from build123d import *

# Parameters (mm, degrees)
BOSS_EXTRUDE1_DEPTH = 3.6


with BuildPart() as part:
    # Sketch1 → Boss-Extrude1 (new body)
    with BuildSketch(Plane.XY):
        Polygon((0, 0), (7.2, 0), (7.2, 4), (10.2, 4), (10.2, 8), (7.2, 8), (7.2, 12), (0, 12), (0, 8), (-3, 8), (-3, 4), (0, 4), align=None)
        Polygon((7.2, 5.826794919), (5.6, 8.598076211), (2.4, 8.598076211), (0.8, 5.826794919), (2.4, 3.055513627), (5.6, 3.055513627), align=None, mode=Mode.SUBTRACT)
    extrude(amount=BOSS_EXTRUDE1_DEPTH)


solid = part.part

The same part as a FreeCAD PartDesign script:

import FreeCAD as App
import Part
import Sketcher
from FreeCAD import Vector
Q = App.Units.Quantity


def add_polygon(sketch, points):
    """Adds a closed chain of lines whose ends are joined by coincident constraints."""
    first, n = sketch.GeometryCount, len(points)
    for a, b in zip(points, points[1:] + points[:1]):
        sketch.addGeometry(Part.LineSegment(App.Vector(*a, 0), App.Vector(*b, 0)), False)
    for i in range(n):
        sketch.addConstraint(Sketcher.Constraint("Coincident", first + i, 2, first + (i + 1) % n, 1))

doc = App.newDocument("Part")
params = doc.addObject("Spreadsheet::Sheet", "Params")
for row, (alias, value) in enumerate([
    ("sketch1_width", "3 mm"),
    ("sketch1_height", "4 mm"),
    ("sketch1_width2", "7.2 mm"),
    ("sketch1_width3", "3.2 mm"),
    ("sketch1_length", "3.2 mm"),
    ("pad1_length", "3.6 mm"),
], start=1):
    params.set(f"A{row}", alias)
    params.set(f"B{row}", "=" + value)
    params.setAlias(f"B{row}", alias)

body = doc.addObject("PartDesign::Body", "Body")

# Sketch on XY plane
sketch1 = doc.addObject("Sketcher::SketchObject", "Sketch")
body.addObject(sketch1)
sketch1.AttachmentSupport = (doc.XY_Plane, [""])
sketch1.MapMode = "FlatFace"
add_polygon(sketch1, [(0, 0), (7.2, 0), (7.2, 4), (10.2, 4), (10.2, 8), (7.2, 8), (7.2, 12), (0, 12), (0, 8), (-3, 8), (-3, 4), (0, 4)])  # lines 0-11
add_polygon(sketch1, [(5.6, 8.6), (7.2, 5.8), (5.6, 3.1), (2.4, 3.1), (0.8, 5.8), (2.4, 8.6)])  # lines 12-17
sketch1.addConstraint(Sketcher.Constraint("Horizontal", 0))
sketch1.addConstraint(Sketcher.Constraint("Vertical", 1))
sketch1.addConstraint(Sketcher.Constraint("Horizontal", 2))
sketch1.addConstraint(Sketcher.Constraint("Vertical", 3))
sketch1.addConstraint(Sketcher.Constraint("Horizontal", 4))
sketch1.addConstraint(Sketcher.Constraint("Vertical", 5))
sketch1.addConstraint(Sketcher.Constraint("Horizontal", 6))
sketch1.addConstraint(Sketcher.Constraint("Vertical", 7))
sketch1.addConstraint(Sketcher.Constraint("Horizontal", 8))
sketch1.addConstraint(Sketcher.Constraint("Vertical", 9))
sketch1.addConstraint(Sketcher.Constraint("Horizontal", 10))
sketch1.addConstraint(Sketcher.Constraint("Vertical", 11))
sketch1.addConstraint(Sketcher.Constraint("Horizontal", 14))
sketch1.addConstraint(Sketcher.Constraint("Horizontal", 17))
sketch1.addConstraint(Sketcher.Constraint("Coincident", 11, 2, -1, 1))
sketch1.addConstraint(Sketcher.Constraint("PointOnObject", 6, 2, -2))
sketch1.addConstraint(Sketcher.Constraint("Parallel", 12, 15))
sketch1.addConstraint(Sketcher.Constraint("Parallel", 13, 16))
sketch1.addConstraint(Sketcher.Constraint("Horizontal", 4, 2, 7, 2))
sketch1.addConstraint(Sketcher.Constraint("Horizontal", 2, 2, 9, 2))
sketch1.addConstraint(Sketcher.Constraint("Horizontal", 12, 2, 15, 2))
sketch1.addConstraint(Sketcher.Constraint("Vertical", 1, 2, 4, 2))
sketch1.addConstraint(Sketcher.Constraint("Vertical", 5, 2, 12, 2))
sketch1.addConstraint(Sketcher.Constraint("Vertical", 14, 2, 16, 2))
sketch1.addConstraint(Sketcher.Constraint("Vertical", 13, 2, 17, 2))
sketch1.addConstraint(Sketcher.Constraint("Equal", 4, 8))
sketch1.addConstraint(Sketcher.Constraint("Equal", 1, 3))
sketch1.addConstraint(Sketcher.Constraint("Equal", 3, 5))
sketch1.addConstraint(Sketcher.Constraint("DistanceX", 2, 1, 2, 2, 3.0))
sketch1.addConstraint(Sketcher.Constraint("DistanceY", 1, 1, 1, 2, 4.0))
sketch1.addConstraint(Sketcher.Constraint("Angle", 12, Q("-60 deg")))
sketch1.addConstraint(Sketcher.Constraint("DistanceX", 0, 1, 0, 2, 7.2))
sketch1.addConstraint(Sketcher.Constraint("DistanceX", 14, 2, 14, 1, 3.2))
sketch1.addConstraint(Sketcher.Constraint("Distance", 12, 3.2))
sketch1.addConstraint(Sketcher.Constraint("DistanceY", -1, 1, 12, 2, 5.826795))
sketch1.setExpression("Constraints[46]", "Params.sketch1_width")
sketch1.setExpression("Constraints[47]", "Params.sketch1_height")
sketch1.setExpression("Constraints[49]", "Params.sketch1_width2")
sketch1.setExpression("Constraints[50]", "Params.sketch1_width3")
sketch1.setExpression("Constraints[51]", "Params.sketch1_length")
pad1 = doc.addObject("PartDesign::Pad", "Pad")
body.addObject(pad1)
pad1.Profile = sketch1
pad1.setExpression("Length", "Params.pad1_length")

doc.recompute()
